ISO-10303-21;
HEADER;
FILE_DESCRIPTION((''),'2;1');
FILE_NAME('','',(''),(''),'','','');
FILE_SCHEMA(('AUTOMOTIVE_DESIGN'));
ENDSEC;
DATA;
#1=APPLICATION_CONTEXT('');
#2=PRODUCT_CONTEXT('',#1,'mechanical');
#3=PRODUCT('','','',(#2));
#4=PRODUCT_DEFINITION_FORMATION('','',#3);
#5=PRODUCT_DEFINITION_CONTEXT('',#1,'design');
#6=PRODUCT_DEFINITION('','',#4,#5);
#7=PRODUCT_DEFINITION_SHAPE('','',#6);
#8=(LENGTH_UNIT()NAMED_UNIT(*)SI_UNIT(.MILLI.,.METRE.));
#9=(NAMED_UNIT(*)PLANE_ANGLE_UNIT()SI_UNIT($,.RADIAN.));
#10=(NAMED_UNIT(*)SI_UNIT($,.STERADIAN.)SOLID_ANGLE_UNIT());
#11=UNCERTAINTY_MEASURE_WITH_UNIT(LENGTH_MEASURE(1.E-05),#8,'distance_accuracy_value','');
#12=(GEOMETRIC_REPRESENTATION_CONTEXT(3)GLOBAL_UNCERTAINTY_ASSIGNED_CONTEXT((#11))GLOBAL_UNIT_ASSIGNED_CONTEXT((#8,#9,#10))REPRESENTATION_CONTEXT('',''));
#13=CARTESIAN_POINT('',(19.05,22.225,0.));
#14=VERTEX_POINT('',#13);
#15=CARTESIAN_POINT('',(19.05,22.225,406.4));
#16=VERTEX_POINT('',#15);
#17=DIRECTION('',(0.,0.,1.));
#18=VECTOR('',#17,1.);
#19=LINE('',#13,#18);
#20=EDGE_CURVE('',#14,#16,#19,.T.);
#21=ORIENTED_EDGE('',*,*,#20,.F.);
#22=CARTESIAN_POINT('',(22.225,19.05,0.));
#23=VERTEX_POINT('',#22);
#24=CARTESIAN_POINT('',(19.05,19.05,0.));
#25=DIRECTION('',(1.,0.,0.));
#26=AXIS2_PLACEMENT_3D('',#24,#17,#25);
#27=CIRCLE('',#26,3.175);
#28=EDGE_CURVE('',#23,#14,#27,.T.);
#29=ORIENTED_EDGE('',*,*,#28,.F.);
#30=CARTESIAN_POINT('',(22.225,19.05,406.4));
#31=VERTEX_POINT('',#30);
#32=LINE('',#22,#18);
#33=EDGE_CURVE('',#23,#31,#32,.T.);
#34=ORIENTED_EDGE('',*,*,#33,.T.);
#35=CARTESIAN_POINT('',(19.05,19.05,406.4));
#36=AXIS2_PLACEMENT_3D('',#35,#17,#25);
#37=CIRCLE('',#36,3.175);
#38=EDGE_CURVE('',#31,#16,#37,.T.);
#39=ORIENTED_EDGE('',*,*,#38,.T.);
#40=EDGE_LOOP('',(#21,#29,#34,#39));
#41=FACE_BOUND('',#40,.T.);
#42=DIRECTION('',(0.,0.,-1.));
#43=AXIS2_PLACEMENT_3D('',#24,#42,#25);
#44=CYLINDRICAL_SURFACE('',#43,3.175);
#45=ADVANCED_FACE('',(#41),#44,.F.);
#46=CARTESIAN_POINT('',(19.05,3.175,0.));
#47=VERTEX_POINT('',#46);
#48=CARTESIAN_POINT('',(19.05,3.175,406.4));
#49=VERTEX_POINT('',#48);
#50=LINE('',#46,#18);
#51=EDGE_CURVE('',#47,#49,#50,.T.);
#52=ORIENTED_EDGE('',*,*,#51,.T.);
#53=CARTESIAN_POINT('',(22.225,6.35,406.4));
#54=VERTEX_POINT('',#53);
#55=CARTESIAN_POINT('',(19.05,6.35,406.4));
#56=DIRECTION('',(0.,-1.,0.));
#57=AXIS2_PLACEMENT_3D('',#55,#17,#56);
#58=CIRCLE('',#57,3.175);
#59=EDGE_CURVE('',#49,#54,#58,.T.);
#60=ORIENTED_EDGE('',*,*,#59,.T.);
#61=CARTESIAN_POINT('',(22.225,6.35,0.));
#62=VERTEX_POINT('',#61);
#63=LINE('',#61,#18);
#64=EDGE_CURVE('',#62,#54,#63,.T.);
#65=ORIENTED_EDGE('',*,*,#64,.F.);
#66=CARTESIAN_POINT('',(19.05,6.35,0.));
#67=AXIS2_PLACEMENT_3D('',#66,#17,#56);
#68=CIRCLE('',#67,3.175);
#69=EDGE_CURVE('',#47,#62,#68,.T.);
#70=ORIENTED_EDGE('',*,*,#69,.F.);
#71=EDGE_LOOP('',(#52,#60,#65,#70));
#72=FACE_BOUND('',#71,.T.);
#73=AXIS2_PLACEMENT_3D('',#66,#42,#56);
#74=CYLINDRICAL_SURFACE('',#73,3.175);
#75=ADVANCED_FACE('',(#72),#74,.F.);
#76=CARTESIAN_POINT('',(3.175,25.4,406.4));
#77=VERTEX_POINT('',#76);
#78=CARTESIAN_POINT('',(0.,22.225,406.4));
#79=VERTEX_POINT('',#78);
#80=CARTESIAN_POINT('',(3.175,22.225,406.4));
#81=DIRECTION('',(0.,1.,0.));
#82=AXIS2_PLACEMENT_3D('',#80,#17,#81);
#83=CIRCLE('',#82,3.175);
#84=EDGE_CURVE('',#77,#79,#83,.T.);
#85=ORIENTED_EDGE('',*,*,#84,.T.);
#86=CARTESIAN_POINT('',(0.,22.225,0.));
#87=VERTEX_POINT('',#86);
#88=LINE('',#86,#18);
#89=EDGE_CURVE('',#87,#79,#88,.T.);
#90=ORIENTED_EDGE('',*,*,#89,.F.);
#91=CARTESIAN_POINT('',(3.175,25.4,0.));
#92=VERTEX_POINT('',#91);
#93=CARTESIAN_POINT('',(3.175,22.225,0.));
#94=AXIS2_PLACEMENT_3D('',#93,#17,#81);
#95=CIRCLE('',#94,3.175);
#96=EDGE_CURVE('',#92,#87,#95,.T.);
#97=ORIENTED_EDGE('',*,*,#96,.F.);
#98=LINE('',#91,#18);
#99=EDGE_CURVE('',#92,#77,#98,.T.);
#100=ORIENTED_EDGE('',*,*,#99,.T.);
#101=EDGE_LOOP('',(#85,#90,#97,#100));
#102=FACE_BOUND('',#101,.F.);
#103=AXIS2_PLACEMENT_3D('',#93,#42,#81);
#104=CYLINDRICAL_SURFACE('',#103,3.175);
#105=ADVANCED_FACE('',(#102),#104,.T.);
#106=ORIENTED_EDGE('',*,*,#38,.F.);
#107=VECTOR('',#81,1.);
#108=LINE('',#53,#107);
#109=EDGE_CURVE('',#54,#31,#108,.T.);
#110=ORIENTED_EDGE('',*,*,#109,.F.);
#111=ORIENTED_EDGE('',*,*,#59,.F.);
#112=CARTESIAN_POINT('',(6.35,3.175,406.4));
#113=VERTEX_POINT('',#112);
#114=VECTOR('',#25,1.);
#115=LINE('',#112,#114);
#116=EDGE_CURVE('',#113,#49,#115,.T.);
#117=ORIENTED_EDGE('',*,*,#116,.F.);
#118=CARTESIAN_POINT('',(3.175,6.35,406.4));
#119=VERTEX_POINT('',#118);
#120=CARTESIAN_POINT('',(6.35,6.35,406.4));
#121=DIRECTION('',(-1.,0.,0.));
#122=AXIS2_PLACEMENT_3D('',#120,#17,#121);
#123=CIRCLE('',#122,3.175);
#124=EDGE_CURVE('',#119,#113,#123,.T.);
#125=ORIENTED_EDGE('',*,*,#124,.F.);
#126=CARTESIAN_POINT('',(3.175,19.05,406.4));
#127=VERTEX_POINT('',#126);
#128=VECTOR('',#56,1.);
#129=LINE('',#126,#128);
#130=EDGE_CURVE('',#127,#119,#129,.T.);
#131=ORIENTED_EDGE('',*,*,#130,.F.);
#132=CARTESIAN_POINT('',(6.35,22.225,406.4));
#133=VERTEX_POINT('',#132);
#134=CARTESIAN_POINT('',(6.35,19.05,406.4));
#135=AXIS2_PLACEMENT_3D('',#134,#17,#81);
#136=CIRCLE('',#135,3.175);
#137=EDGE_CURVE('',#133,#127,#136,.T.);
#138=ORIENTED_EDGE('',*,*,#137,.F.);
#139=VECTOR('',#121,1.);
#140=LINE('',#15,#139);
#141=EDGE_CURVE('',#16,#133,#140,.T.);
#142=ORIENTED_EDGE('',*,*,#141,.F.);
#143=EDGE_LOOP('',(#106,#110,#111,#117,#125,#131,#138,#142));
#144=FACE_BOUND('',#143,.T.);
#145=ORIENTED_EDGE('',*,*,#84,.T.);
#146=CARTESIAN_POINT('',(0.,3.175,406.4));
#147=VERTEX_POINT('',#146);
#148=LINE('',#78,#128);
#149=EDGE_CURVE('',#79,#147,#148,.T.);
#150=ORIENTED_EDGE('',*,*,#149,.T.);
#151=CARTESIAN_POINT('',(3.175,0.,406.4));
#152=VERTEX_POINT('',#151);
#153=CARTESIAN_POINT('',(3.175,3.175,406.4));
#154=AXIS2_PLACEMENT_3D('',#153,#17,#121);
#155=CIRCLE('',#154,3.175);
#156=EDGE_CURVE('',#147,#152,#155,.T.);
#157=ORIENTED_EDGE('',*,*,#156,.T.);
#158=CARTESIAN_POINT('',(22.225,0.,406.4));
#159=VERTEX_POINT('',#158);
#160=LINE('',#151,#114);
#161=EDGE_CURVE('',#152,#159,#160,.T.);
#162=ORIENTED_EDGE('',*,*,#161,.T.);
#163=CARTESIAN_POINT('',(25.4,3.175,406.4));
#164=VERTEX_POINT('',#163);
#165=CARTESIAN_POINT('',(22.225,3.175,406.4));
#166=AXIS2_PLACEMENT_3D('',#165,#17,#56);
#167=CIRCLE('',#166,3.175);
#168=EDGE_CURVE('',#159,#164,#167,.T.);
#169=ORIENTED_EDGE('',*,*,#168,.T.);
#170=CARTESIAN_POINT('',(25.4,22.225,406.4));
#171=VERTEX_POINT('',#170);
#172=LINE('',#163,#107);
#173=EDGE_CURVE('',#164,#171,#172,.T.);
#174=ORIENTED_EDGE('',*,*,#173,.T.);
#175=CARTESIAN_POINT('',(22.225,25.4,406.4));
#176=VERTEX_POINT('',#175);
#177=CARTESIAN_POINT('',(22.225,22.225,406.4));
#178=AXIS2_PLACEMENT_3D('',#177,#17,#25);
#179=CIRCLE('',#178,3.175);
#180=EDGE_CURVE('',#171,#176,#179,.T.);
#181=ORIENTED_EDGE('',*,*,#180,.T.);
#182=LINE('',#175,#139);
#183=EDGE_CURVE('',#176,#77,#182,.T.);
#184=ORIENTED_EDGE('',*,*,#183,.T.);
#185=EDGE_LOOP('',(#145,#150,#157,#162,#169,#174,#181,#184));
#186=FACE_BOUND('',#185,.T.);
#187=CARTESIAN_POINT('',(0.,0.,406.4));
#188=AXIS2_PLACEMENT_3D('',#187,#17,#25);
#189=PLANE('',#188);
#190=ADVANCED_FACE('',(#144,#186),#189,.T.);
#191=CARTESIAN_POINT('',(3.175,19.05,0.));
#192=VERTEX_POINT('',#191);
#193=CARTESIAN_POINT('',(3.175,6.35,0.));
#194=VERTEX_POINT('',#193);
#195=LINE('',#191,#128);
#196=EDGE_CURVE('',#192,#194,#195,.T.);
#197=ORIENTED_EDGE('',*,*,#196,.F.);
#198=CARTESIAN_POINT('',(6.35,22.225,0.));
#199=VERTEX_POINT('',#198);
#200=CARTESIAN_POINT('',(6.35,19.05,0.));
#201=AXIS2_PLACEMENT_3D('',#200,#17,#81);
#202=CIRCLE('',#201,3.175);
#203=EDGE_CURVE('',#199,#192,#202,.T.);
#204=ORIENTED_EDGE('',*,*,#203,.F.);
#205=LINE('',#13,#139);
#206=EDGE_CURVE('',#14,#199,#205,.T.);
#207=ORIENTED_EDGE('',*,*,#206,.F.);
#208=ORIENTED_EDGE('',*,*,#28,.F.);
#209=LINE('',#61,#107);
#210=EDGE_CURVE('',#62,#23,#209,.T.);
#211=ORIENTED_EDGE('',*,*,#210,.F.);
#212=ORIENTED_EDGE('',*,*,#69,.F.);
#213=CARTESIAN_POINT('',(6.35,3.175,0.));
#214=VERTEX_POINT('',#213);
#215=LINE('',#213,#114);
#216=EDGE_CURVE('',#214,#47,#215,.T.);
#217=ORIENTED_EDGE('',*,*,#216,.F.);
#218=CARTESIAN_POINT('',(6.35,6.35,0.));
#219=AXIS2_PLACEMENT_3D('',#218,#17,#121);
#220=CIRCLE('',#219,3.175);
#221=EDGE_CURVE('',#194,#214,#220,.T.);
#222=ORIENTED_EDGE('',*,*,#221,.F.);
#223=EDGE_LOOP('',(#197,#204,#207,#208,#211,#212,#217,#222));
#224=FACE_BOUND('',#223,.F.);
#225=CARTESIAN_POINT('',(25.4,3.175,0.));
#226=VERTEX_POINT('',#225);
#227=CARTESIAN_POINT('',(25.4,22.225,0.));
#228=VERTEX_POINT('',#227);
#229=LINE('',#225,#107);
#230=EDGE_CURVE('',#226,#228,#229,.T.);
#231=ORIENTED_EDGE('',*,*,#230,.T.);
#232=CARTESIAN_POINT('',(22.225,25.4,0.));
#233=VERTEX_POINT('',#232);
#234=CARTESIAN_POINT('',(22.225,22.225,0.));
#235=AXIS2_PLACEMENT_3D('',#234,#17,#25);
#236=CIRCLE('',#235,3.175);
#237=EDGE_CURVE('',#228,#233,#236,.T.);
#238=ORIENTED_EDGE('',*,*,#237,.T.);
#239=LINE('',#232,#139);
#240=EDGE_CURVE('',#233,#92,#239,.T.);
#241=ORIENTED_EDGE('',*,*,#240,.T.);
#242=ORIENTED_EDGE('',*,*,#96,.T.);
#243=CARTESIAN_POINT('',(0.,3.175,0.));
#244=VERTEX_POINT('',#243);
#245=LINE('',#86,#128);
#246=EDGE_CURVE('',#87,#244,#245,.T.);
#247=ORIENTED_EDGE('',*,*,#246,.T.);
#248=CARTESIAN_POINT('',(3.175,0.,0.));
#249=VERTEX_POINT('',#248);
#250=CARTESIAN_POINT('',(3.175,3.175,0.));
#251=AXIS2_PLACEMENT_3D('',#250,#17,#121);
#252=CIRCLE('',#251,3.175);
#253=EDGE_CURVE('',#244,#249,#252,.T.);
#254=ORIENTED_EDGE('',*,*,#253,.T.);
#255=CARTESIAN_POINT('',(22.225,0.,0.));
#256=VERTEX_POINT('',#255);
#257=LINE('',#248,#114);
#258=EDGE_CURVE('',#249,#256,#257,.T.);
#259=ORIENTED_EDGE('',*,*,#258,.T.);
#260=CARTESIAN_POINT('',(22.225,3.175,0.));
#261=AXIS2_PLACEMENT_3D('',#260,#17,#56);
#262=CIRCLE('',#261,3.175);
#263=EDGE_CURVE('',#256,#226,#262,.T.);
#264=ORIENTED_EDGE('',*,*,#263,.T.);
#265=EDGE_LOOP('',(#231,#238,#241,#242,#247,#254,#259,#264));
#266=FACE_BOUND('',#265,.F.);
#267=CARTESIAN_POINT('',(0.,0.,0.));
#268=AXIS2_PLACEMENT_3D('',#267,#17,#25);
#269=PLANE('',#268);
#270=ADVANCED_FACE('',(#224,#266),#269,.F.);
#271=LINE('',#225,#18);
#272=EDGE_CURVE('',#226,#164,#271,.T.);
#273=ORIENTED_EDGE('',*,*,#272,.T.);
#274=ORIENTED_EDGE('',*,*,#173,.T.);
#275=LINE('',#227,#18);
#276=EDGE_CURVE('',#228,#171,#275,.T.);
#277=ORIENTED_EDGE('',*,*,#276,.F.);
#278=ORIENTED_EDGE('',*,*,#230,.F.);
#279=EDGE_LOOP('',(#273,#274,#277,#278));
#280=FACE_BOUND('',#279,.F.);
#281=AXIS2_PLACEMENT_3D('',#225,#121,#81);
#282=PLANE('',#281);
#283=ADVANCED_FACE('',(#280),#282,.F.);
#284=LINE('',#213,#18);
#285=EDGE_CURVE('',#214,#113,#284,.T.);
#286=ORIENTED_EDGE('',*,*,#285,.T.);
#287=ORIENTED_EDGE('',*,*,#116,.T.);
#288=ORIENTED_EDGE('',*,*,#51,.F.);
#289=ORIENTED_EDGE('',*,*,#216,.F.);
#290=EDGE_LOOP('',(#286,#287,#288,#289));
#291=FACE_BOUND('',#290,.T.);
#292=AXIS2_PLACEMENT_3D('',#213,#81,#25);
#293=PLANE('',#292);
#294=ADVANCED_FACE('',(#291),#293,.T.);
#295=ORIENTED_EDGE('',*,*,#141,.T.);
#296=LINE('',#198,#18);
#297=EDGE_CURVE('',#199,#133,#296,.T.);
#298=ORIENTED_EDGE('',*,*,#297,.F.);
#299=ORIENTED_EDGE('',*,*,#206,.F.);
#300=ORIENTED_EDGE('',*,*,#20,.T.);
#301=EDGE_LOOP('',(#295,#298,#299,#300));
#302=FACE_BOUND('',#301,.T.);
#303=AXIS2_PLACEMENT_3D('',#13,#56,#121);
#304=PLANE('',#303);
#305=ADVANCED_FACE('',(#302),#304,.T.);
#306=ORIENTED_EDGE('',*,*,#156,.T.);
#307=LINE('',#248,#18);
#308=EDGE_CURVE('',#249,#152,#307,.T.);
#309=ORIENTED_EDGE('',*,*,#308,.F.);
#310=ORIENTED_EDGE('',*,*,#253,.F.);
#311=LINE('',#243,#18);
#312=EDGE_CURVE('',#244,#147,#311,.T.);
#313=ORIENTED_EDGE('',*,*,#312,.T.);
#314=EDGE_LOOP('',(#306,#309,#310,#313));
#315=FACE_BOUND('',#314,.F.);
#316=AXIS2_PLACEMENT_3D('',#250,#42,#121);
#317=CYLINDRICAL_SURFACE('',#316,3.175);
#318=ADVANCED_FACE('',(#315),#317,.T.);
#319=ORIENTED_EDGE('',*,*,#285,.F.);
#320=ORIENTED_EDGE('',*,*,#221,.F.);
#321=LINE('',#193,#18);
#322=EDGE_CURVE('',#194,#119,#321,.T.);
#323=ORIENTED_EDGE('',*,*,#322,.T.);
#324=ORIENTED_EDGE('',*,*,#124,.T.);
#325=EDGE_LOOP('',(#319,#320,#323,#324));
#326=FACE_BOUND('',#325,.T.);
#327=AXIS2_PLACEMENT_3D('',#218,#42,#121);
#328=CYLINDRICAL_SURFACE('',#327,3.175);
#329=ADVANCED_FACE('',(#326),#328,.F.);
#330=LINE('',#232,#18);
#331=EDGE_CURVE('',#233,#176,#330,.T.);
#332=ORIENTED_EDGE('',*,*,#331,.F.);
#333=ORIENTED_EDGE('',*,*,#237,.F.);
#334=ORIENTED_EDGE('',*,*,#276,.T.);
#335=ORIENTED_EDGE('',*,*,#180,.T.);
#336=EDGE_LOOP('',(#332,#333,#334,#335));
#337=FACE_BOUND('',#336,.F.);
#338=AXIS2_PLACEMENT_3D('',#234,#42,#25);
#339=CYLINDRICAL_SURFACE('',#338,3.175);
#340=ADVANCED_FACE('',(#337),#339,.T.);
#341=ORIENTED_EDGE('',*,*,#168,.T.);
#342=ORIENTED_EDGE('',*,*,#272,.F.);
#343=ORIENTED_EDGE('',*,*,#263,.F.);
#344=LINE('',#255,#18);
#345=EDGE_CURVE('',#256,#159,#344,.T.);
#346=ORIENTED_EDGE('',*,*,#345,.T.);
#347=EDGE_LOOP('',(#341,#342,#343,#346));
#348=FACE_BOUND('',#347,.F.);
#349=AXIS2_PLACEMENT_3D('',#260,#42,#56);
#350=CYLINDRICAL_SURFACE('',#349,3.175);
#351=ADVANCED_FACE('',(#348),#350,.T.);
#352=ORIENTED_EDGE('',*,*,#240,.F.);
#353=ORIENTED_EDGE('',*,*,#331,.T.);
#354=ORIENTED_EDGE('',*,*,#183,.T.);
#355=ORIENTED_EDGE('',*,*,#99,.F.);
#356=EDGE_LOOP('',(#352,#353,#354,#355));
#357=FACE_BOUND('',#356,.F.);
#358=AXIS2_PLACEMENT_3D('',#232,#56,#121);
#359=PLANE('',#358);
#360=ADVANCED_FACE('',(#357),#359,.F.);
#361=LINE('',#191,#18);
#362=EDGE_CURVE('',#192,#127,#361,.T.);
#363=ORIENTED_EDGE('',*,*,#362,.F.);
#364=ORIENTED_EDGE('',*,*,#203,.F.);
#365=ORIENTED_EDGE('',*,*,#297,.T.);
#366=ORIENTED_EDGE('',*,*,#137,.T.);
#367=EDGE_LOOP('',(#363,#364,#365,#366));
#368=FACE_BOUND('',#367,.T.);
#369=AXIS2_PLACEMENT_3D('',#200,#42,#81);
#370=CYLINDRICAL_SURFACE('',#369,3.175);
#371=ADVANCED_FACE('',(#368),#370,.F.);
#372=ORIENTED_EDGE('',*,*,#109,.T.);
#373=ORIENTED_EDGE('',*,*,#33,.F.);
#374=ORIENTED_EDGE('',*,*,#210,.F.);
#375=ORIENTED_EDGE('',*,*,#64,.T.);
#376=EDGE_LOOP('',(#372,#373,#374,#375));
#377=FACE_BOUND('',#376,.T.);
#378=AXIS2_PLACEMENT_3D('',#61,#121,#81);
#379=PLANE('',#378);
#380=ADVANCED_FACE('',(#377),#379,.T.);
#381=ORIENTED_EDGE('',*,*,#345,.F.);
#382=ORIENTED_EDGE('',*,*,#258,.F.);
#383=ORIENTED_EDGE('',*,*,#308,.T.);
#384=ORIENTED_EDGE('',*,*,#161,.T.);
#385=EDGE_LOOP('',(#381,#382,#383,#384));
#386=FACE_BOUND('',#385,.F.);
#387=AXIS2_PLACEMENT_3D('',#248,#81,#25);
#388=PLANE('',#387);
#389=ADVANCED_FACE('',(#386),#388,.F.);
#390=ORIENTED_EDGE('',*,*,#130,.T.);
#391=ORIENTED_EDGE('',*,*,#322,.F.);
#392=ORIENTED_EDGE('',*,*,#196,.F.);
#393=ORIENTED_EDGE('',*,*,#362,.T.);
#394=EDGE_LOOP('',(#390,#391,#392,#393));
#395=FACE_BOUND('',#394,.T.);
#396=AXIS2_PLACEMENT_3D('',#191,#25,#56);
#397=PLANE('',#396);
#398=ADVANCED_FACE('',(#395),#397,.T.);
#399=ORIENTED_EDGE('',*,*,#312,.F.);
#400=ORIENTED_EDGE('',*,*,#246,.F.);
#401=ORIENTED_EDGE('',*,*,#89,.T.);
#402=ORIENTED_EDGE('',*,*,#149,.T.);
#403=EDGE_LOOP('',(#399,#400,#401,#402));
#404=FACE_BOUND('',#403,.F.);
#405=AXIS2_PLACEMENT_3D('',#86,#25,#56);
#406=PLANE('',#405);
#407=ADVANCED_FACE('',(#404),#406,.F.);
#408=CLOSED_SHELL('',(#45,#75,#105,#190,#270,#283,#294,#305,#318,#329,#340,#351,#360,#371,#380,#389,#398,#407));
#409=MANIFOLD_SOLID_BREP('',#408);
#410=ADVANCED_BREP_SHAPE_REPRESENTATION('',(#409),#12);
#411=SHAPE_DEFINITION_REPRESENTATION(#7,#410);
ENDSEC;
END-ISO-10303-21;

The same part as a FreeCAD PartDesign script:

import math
import FreeCAD as App
import Part
import Sketcher
from FreeCAD import Vector
Q = App.Units.Quantity

doc = App.newDocument("Part")
body = doc.addObject("PartDesign::Body", "Body")

# Sketch on XY plane
sketch1 = body.newObject("Sketcher::SketchObject", "Sketch")
sketch1.AttachmentSupport = (doc.getObject("XY_Plane"), [""])
sketch1.MapMode = "FlatFace"
sketch1.addGeometry([
    Part.ArcOfCircle(Part.Circle(Vector(3.2, 3.2, 0), Vector(0, 0, 1), 3.2), math.radians(180), math.radians(270)),  # 0
    Part.LineSegment(Vector(3.2, 0, 0), Vector(22.2, 0, 0)),  # 1
    Part.ArcOfCircle(Part.Circle(Vector(22.2, 3.2, 0), Vector(0, 0, 1), 3.2), math.radians(-90), math.radians(0)),  # 2
    Part.LineSegment(Vector(25.4, 3.2, 0), Vector(25.4, 22.2, 0)),  # 3
    Part.ArcOfCircle(Part.Circle(Vector(22.2, 22.2, 0), Vector(0, 0, 1), 3.2), math.radians(0), math.radians(90)),  # 4
    Part.LineSegment(Vector(22.2, 25.4, 0), Vector(3.2, 25.4, 0)),  # 5
    Part.ArcOfCircle(Part.Circle(Vector(3.2, 22.2, 0), Vector(0, 0, 1), 3.2), math.radians(90), math.radians(180)),  # 6
    Part.LineSegment(Vector(0, 22.2, 0), Vector(0, 3.2, 0)),  # 7
    Part.LineSegment(Vector(19.1, 3.2, 0), Vector(6.3, 3.2, 0)),  # 8
    Part.ArcOfCircle(Part.Circle(Vector(6.3, 6.3, 0), Vector(0, 0, 1), 3.2), math.radians(180), math.radians(270)),  # 9
    Part.LineSegment(Vector(3.2, 6.3, 0), Vector(3.2, 19.1, 0)),  # 10
    Part.ArcOfCircle(Part.Circle(Vector(6.3, 19.1, 0), Vector(0, 0, 1), 3.2), math.radians(90), math.radians(180)),  # 11
    Part.LineSegment(Vector(6.3, 22.2, 0), Vector(19.1, 22.2, 0)),  # 12
    Part.ArcOfCircle(Part.Circle(Vector(19.1, 19.1, 0), Vector(0, 0, 1), 3.2), math.radians(0), math.radians(90)),  # 13
    Part.LineSegment(Vector(22.2, 19.1, 0), Vector(22.2, 6.3, 0)),  # 14
    Part.ArcOfCircle(Part.Circle(Vector(19.1, 6.3, 0), Vector(0, 0, 1), 3.2), math.radians(-90), math.radians(0)),  # 15
], False)
sketch1.addConstraint([
    Sketcher.Constraint("Tangent", 0, 2, 1, 1),
    Sketcher.Constraint("Tangent", 1, 2, 2, 1),
    Sketcher.Constraint("Tangent", 2, 2, 3, 1),
    Sketcher.Constraint("Tangent", 3, 2, 4, 1),
    Sketcher.Constraint("Tangent", 4, 2, 5, 1),
    Sketcher.Constraint("Tangent", 5, 2, 6, 1),
    Sketcher.Constraint("Tangent", 6, 2, 7, 1),
    Sketcher.Constraint("Tangent", 7, 2, 0, 1),
    Sketcher.Constraint("Tangent", 8, 2, 9, 2),
    Sketcher.Constraint("Tangent", 9, 1, 10, 1),
    Sketcher.Constraint("Tangent", 10, 2, 11, 2),
    Sketcher.Constraint("Tangent", 11, 1, 12, 1),
    Sketcher.Constraint("Tangent", 12, 2, 13, 2),
    Sketcher.Constraint("Tangent", 13, 1, 14, 1),
    Sketcher.Constraint("Tangent", 14, 2, 15, 2),
    Sketcher.Constraint("Tangent", 15, 1, 8, 1),
    Sketcher.Constraint("Horizontal", 1),
    Sketcher.Constraint("Vertical", 3),
    Sketcher.Constraint("Horizontal", 5),
    Sketcher.Constraint("Vertical", 7),
    Sketcher.Constraint("Horizontal", 8),
    Sketcher.Constraint("Vertical", 10),
    Sketcher.Constraint("Horizontal", 12),
    Sketcher.Constraint("Vertical", 14),
    Sketcher.Constraint("Equal", 0, 2),
    Sketcher.Constraint("Equal", 2, 4),
    Sketcher.Constraint("Equal", 4, 6),
    Sketcher.Constraint("Equal", 6, 9),
    Sketcher.Constraint("Equal", 9, 11),
    Sketcher.Constraint("Equal", 11, 13),
    Sketcher.Constraint("Equal", 13, 15),
    Sketcher.Constraint("PointOnObject", 0, 2, -1),
    Sketcher.Constraint("PointOnObject", 6, 2, -2),
    Sketcher.Constraint("Horizontal", 7, 2, 8, 2),
    Sketcher.Constraint("Horizontal", 6, 2, 11, 1),
    Sketcher.Constraint("Vertical", 5, 2, 9, 1),
    Sketcher.Constraint("Vertical", 4, 2, 13, 1),
    Sketcher.Constraint("Equal", 5, 3),
    Sketcher.Constraint("DistanceX", -1, 1, 2, 2, Q("1 in")),
    Sketcher.Constraint("Radius", 0, Q("0.125 in")),
])
pad1 = body.newObject("PartDesign::Pad", "Pad")
pad1.Profile = sketch1
pad1.Length = Q("16 in")

doc.recompute()
